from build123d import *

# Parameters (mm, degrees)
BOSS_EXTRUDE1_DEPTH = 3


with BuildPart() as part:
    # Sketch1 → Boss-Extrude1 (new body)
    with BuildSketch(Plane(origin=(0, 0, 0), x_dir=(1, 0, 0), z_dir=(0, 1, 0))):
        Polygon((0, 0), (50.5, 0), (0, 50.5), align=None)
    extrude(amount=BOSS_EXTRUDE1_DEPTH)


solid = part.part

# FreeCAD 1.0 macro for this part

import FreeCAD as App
import Part
import Sketcher
from FreeCAD import Vector


def add_polygon(sketch, points):
    """Adds a closed chain of lines whose ends are joined by coincident constraints."""
    first, n = sketch.GeometryCount, len(points)
    for a, b in zip(points, points[1:] + points[:1]):
        sketch.addGeometry(Part.LineSegment(App.Vector(*a, 0), App.Vector(*b, 0)), False)
    for i in range(n):
        sketch.addConstraint(Sketcher.Constraint("Coincident", first + i, 2, first + (i + 1) % n, 1))

doc = App.newDocument("Part")
body = doc.addObject("PartDesign::Body", "Body")

# Sketch on XZ plane
sketch1 = body.newObject("Sketcher::SketchObject", "Sketch")
sketch1.AttachmentSupport = (doc.getObject("XZ_Plane"), [""])
sketch1.MapMode = "FlatFace"
add_polygon(sketch1, [(0, 0), (50.5, 0), (0, -50.5)])  # lines 0-2
sketch1.addConstraint([
    Sketcher.Constraint("Horizontal", 0),
    Sketcher.Constraint("Vertical", 2),
    Sketcher.Constraint("Coincident", 2, 2, -1, 1),
    Sketcher.Constraint("Equal", 0, 2),
    Sketcher.Constraint("DistanceX", 0, 1, 0, 2, 50.5),
])
pad1 = body.newObject("PartDesign::Pad", "Pad")
pad1.Profile = sketch1
pad1.Length = 3
pad1.Reversed = True

doc.recompute()
